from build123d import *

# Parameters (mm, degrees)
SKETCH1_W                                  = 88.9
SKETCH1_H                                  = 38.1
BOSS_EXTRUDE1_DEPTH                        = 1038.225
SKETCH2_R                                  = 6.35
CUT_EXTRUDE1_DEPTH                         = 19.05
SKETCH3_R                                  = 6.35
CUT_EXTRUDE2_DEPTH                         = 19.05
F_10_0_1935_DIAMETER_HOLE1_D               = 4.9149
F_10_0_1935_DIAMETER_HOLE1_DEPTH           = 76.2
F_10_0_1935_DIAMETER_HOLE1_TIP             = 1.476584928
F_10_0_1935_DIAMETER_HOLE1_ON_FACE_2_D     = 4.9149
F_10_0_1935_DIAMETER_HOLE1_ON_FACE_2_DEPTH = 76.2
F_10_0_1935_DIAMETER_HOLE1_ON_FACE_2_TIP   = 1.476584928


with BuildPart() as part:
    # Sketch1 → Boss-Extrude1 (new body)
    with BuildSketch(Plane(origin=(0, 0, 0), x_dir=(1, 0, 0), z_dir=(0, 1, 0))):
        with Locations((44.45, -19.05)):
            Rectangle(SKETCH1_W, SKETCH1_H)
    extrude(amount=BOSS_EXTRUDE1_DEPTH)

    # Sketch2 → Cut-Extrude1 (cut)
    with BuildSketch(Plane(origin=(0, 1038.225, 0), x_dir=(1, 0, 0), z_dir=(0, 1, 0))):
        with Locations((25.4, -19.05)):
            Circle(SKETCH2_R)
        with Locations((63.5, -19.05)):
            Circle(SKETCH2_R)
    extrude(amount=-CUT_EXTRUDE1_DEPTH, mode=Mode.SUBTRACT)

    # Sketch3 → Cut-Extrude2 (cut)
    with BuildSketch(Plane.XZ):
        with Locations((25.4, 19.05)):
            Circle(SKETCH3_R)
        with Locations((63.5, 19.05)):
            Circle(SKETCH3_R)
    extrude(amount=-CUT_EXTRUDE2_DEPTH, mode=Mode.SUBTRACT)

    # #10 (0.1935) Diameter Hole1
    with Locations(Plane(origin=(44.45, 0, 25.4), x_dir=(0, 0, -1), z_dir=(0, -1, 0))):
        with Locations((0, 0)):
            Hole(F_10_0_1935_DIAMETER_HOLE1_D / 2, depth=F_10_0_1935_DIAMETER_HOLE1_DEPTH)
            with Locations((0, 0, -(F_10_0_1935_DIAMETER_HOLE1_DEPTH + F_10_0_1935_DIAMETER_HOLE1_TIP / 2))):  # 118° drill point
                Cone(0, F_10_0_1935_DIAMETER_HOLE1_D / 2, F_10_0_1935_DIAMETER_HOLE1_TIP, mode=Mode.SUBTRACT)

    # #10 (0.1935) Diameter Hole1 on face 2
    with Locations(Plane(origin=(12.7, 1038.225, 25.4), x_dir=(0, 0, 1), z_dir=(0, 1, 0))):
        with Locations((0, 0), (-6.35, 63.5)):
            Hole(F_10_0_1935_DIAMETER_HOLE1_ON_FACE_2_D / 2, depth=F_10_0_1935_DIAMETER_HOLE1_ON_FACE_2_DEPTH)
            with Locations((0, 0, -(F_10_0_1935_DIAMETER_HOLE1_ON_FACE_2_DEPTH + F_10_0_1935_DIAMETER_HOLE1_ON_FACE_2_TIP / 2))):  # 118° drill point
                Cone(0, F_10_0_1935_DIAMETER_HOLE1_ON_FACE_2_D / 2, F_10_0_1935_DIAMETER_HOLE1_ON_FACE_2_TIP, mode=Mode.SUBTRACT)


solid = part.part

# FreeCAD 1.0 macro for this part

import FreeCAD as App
import Part
import Sketcher

V = App.Vector
Q = App.Units.Quantity

doc = App.newDocument("Part")
body = doc.addObject("PartDesign::Body", "Body")

# Sketch on XZ plane
sketch1 = body.newObject("Sketcher::SketchObject", "Sketch")
sketch1.AttachmentSupport = (doc.getObject("XZ_Plane"), [""])
sketch1.MapMode = "FlatFace"
sketch1.addGeometry(Part.LineSegment(V(0, 0, 0), V(0, 38, 0)), False)
sketch1.addGeometry(Part.LineSegment(V(0, 38, 0), V(89, 38, 0)), False)
sketch1.addGeometry(Part.LineSegment(V(89, 38, 0), V(89, 0, 0)), False)
sketch1.addGeometry(Part.LineSegment(V(89, 0, 0), V(0, 0, 0)), False)
sketch1.addConstraint(Sketcher.Constraint("Coincident", 0, 2, 1, 1))
sketch1.addConstraint(Sketcher.Constraint("Coincident", 1, 2, 2, 1))
sketch1.addConstraint(Sketcher.Constraint("Coincident", 2, 2, 3, 1))
sketch1.addConstraint(Sketcher.Constraint("Coincident", 3, 2, 0, 1))
sketch1.addConstraint(Sketcher.Constraint("Vertical", 0))
sketch1.addConstraint(Sketcher.Constraint("Horizontal", 1))
sketch1.addConstraint(Sketcher.Constraint("Vertical", 2))
sketch1.addConstraint(Sketcher.Constraint("Horizontal", 3))
sketch1.addConstraint(Sketcher.Constraint("Coincident", 3, 2, -1, 1))
sketch1.addConstraint(Sketcher.Constraint("DistanceX", 1, 1, 1, 2, Q("3.5 in")))
sketch1.addConstraint(Sketcher.Constraint("DistanceY", 0, 1, 0, 2, Q("1.5 in")))
pad1 = body.newObject("PartDesign::Pad", "Pad")
pad1.Profile = sketch1
pad1.Length = Q("40.875 in")
pad1.Reversed = True

# Sketch on XZ plane
sketch2 = body.newObject("Sketcher::SketchObject", "Sketch001")
sketch2.AttachmentSupport = (doc.getObject("XZ_Plane"), [""])
sketch2.MapMode = "FlatFace"
sketch2.AttachmentOffset = App.Placement(V(0, 0, -40.875 * 25.4), App.Rotation())
sketch2.addGeometry(Part.Circle(V(25, 19, 0), V(0, 0, 1), 6), False)
sketch2.addGeometry(Part.Circle(V(64, 19, 0), V(0, 0, 1), 6), False)
sketch2.addConstraint(Sketcher.Constraint("Equal", 0, 1))
sketch2.addConstraint(Sketcher.Constraint("Horizontal", 0, 3, 1, 3))
sketch2.addConstraint(Sketcher.Constraint("Diameter", 0, Q("0.5 in")))
sketch2.addConstraint(Sketcher.Constraint("DistanceX", -1, 1, 0, 3, Q("1 in")))
sketch2.addConstraint(Sketcher.Constraint("DistanceX", -1, 1, 1, 3, Q("2.5 in")))
sketch2.addConstraint(Sketcher.Constraint("DistanceY", -1, 1, 0, 3, Q("0.75 in")))
pocket1 = body.newObject("PartDesign::Pocket", "Pocket")
pocket1.Profile = sketch2
pocket1.Length = Q("0.75 in")
pocket1.Reversed = True

# Sketch on XZ plane
sketch3 = body.newObject("Sketcher::SketchObject", "Sketch002")
sketch3.AttachmentSupport = (doc.getObject("XZ_Plane"), [""])
sketch3.MapMode = "FlatFace"
sketch3.addGeometry(Part.Circle(V(25, 19, 0), V(0, 0, 1), 6), False)
sketch3.addGeometry(Part.Circle(V(64, 19, 0), V(0, 0, 1), 6), False)
sketch3.addConstraint(Sketcher.Constraint("Equal", 0, 1))
sketch3.addConstraint(Sketcher.Constraint("Horizontal", 0, 3, 1, 3))
sketch3.addConstraint(Sketcher.Constraint("Diameter", 0, Q("0.5 in")))
sketch3.addConstraint(Sketcher.Constraint("DistanceX", -1, 1, 0, 3, Q("1 in")))
sketch3.addConstraint(Sketcher.Constraint("DistanceX", -1, 1, 1, 3, Q("2.5 in")))
sketch3.addConstraint(Sketcher.Constraint("DistanceY", -1, 1, 0, 3, Q("0.75 in")))
pocket2 = body.newObject("PartDesign::Pocket", "Pocket001")
pocket2.Profile = sketch3
pocket2.Length = Q("0.75 in")

# Sketch on XZ plane
sketch4 = body.newObject("Sketcher::SketchObject", "Sketch003")
sketch4.AttachmentSupport = (doc.getObject("XZ_Plane"), [""])
sketch4.MapMode = "FlatFace"
sketch4.addGeometry(Part.Circle(V(44.5, 25.4, 0), V(0, 0, 1), 2.5), False)
sketch4.addConstraint(Sketcher.Constraint("DistanceY", -1, 1, 0, 3, Q("1 in")))
sketch4.addConstraint(Sketcher.Constraint("Diameter", 0, Q("0.1935 in")))
sketch4.addConstraint(Sketcher.Constraint("DistanceX", -1, 1, 0, 3, Q("1.75 in")))
doc.recompute()
hole = body.newObject("PartDesign::Hole", "Hole")
hole.Profile = sketch4
hole.ThreadType = "None"
hole.Diameter = Q("0.1935 in")
hole.DepthType = "Dimension"
hole.Depth = Q("3 in")
hole.DrillPoint = "Angled"
hole.DrillPointAngle = 118

# Sketch on XZ plane
sketch5 = body.newObject("Sketcher::SketchObject", "Sketch004")
sketch5.AttachmentSupport = (doc.getObject("XZ_Plane"), [""])
sketch5.MapMode = "FlatFace"
sketch5.AttachmentOffset = App.Placement(V(0, 0, -40.875 * 25.4), App.Rotation())
sketch5.addGeometry(Part.Circle(V(12.7, 25.4, 0), V(0, 0, 1), 2.5), False)
sketch5.addGeometry(Part.Circle(V(76.2, 19.1, 0), V(0, 0, 1), 2.5), False)
sketch5.addConstraint(Sketcher.Constraint("Equal", 0, 1))
sketch5.addConstraint(Sketcher.Constraint("DistanceY", -1, 1, 0, 3, Q("1 in")))
sketch5.addConstraint(Sketcher.Constraint("DistanceX", -1, 1, 1, 3, Q("3 in")))
sketch5.addConstraint(Sketcher.Constraint("Diameter", 0, Q("0.1935 in")))
sketch5.addConstraint(Sketcher.Constraint("DistanceX", -1, 1, 0, 3, Q("0.5 in")))
sketch5.addConstraint(Sketcher.Constraint("DistanceY", -1, 1, 1, 3, Q("0.75 in")))
doc.recompute()
hole2 = body.newObject("PartDesign::Hole", "Hole001")
hole2.Profile = sketch5
hole2.ThreadType = "None"
hole2.Diameter = Q("0.1935 in")
hole2.DepthType = "Dimension"
hole2.Depth = Q("3 in")
hole2.DrillPoint = "Angled"
hole2.DrillPointAngle = 118
hole2.Reversed = True

doc.recompute()
